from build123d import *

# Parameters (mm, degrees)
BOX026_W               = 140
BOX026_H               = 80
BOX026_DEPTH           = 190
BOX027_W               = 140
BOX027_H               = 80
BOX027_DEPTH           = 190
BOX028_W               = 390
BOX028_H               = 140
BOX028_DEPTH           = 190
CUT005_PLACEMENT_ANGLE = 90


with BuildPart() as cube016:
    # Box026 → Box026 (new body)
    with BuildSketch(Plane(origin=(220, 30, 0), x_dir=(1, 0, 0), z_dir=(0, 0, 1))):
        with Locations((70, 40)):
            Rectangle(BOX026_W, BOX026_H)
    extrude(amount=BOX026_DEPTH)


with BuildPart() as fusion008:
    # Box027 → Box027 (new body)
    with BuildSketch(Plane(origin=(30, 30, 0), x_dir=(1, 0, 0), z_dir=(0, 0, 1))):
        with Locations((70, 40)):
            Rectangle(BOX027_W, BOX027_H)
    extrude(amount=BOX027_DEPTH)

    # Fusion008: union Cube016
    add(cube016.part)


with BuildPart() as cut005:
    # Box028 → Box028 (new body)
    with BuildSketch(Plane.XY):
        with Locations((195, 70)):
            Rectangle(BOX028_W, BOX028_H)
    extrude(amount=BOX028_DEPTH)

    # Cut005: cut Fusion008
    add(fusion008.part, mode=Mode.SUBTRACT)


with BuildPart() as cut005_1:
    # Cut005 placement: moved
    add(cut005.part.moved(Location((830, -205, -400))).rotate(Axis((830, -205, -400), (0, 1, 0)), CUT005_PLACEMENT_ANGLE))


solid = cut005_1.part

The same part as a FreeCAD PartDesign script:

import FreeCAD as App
import Part
import Sketcher
from FreeCAD import Vector


def add_polygon(sketch, points):
    """Adds a closed chain of lines whose ends are joined by coincident constraints."""
    first, n = sketch.GeometryCount, len(points)
    for a, b in zip(points, points[1:] + points[:1]):
        sketch.addGeometry(Part.LineSegment(App.Vector(*a, 0), App.Vector(*b, 0)), False)
    for i in range(n):
        sketch.addConstraint(Sketcher.Constraint("Coincident", first + i, 2, first + (i + 1) % n, 1))

doc = App.newDocument("Part")
body = doc.addObject("PartDesign::Body", "Body")

# Sketch on XY plane
sketch1 = body.newObject("Sketcher::SketchObject", "Sketch")
sketch1.AttachmentSupport = (doc.getObject("XY_Plane"), [""])
sketch1.MapMode = "FlatFace"
add_polygon(sketch1, [(220, 110), (220, 30), (360, 30), (360, 110)])  # lines 0-3
sketch1.addConstraint([
    Sketcher.Constraint("Vertical", 0),
    Sketcher.Constraint("Horizontal", 1),
    Sketcher.Constraint("Vertical", 2),
    Sketcher.Constraint("Horizontal", 3),
    Sketcher.Constraint("DistanceX", 1, 1, 1, 2, 140.0),
    Sketcher.Constraint("DistanceY", 0, 2, 0, 1, 80.0),
    Sketcher.Constraint("DistanceX", -1, 1, 0, 2, 220.0),
    Sketcher.Constraint("DistanceY", -1, 1, 0, 2, 30.0),
])
pad1 = body.newObject("PartDesign::Pad", "Pad")
pad1.Profile = sketch1
pad1.Length = 190
body2 = doc.addObject("PartDesign::Body", "Body001")
body2.AllowCompound = True

# Sketch on XY plane
sketch2 = body2.newObject("Sketcher::SketchObject", "Sketch001")
sketch2.AttachmentSupport = (doc.getObject("XY_Plane001"), [""])
sketch2.MapMode = "FlatFace"
add_polygon(sketch2, [(30, 110), (30, 30), (170, 30), (170, 110)])  # lines 0-3
sketch2.addConstraint([
    Sketcher.Constraint("Vertical", 0),
    Sketcher.Constraint("Horizontal", 1),
    Sketcher.Constraint("Vertical", 2),
    Sketcher.Constraint("Horizontal", 3),
    Sketcher.Constraint("DistanceX", 1, 1, 1, 2, 140.0),
    Sketcher.Constraint("DistanceY", 0, 2, 0, 1, 80.0),
    Sketcher.Constraint("DistanceX", -1, 1, 0, 2, 30.0),
    Sketcher.Constraint("DistanceY", -1, 1, 0, 2, 30.0),
])
pad2 = body2.newObject("PartDesign::Pad", "Pad001")
pad2.Profile = sketch2
pad2.Length = 190
doc.recompute()

boolean = body2.newObject("PartDesign::Boolean", "Boolean")
boolean.Type = "Fuse"
boolean.addObjects([body])
body3 = doc.addObject("PartDesign::Body", "Body002")

# Sketch on XY plane
sketch3 = body3.newObject("Sketcher::SketchObject", "Sketch002")
sketch3.AttachmentSupport = (doc.getObject("XY_Plane002"), [""])
sketch3.MapMode = "FlatFace"
add_polygon(sketch3, [(0, 140), (0, 0), (390, 0), (390, 140)])  # lines 0-3
sketch3.addConstraint([
    Sketcher.Constraint("Vertical", 0),
    Sketcher.Constraint("Horizontal", 1),
    Sketcher.Constraint("Vertical", 2),
    Sketcher.Constraint("Horizontal", 3),
    Sketcher.Constraint("Coincident", 0, 2, -1, 1),
    Sketcher.Constraint("DistanceX", 1, 1, 1, 2, 390.0),
    Sketcher.Constraint("DistanceY", 0, 2, 0, 1, 140.0),
])
pad3 = body3.newObject("PartDesign::Pad", "Pad002")
pad3.Profile = sketch3
pad3.Length = 190
doc.recompute()

boolean2 = body3.newObject("PartDesign::Boolean", "Boolean001")
boolean2.Type = "Cut"
boolean2.addObjects([body2])
body4 = doc.addObject("PartDesign::Body", "Body003")
doc.recompute()

body3.Placement = App.Placement(Vector(830, -205, -400), App.Rotation(Vector(0, 1, 0), 90))
boolean3 = body4.newObject("PartDesign::Boolean", "Boolean002")
boolean3.Type = "Fuse"
boolean3.addObjects([body3])

doc.recompute()
